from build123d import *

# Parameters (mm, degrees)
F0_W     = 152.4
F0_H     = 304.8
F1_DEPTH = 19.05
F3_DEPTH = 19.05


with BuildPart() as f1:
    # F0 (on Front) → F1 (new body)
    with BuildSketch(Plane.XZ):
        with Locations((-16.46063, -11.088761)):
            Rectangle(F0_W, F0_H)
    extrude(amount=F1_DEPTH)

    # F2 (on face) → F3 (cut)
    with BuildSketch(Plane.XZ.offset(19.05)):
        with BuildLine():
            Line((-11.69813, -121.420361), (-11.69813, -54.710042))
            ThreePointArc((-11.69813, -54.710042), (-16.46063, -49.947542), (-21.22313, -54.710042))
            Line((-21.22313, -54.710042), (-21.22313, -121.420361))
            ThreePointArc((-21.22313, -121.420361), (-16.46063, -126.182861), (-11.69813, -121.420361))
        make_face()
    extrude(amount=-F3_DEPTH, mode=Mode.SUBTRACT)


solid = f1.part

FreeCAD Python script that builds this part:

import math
import FreeCAD as App
import Part
import Sketcher
from FreeCAD import Vector
Q = App.Units.Quantity

doc = App.newDocument("Part")
body = doc.addObject("PartDesign::Body", "Body")

sketch1 = body.newObject("Sketcher::SketchObject", "Sketch")
sketch1.AttachmentSupport = (doc.getObject("XZ_Plane"), [""])
sketch1.MapMode = "FlatFace"
sketch1.addGeometry([
    Part.LineSegment(Vector(-93, 141, 0), Vector(-93, -163, 0)),
    Part.LineSegment(Vector(-93, -163, 0), Vector(60, -163, 0)),
    Part.LineSegment(Vector(60, -163, 0), Vector(60, 141, 0)),
    Part.LineSegment(Vector(60, 141, 0), Vector(-93, 141, 0)),
], False)
sketch1.addConstraint([
    Sketcher.Constraint("Coincident", 0, 2, 1, 1),
    Sketcher.Constraint("Coincident", 1, 2, 2, 1),
    Sketcher.Constraint("Coincident", 2, 2, 3, 1),
    Sketcher.Constraint("Coincident", 3, 2, 0, 1),
    Sketcher.Constraint("Vertical", 0),
    Sketcher.Constraint("Horizontal", 1),
    Sketcher.Constraint("Vertical", 2),
    Sketcher.Constraint("Horizontal", 3),
    Sketcher.Constraint("DistanceX", 1, 1, 1, 2, Q("6 in")),
    Sketcher.Constraint("DistanceY", 0, 2, 0, 1, Q("12 in")),
    Sketcher.Constraint("DistanceX", 0, 2, -1, 1, Q("92.66063 mm")),
    Sketcher.Constraint("DistanceY", 0, 2, -1, 1, Q("163.488761 mm")),
])
pad1 = body.newObject("PartDesign::Pad", "Pad")
pad1.Profile = sketch1
pad1.Length = Q("0.75 in")

sketch2 = body.newObject("Sketcher::SketchObject", "Sketch001")
sketch2.AttachmentSupport = (doc.getObject("XZ_Plane"), [""])
sketch2.MapMode = "FlatFace"
sketch2.AttachmentOffset = App.Placement(Vector(0, 0, 0.75 * 25.4), App.Rotation())
sketch2.addGeometry([
    Part.LineSegment(Vector(-11.7, -121.4, 0), Vector(-11.7, -54.7, 0)),
    Part.ArcOfCircle(Part.Circle(Vector(-16.5, -54.7, 0), Vector(0, 0, 1), 4.8), math.radians(0), math.radians(180)),
    Part.LineSegment(Vector(-21.2, -54.7, 0), Vector(-21.2, -121.4, 0)),
    Part.ArcOfCircle(Part.Circle(Vector(-16.5, -121.4, 0), Vector(0, 0, 1), 4.8), math.radians(180), math.radians(360)),
], False)
sketch2.addConstraint([
    Sketcher.Constraint("Tangent", 0, 2, 1, 1),
    Sketcher.Constraint("Tangent", 1, 2, 2, 1),
    Sketcher.Constraint("Tangent", 2, 2, 3, 1),
    Sketcher.Constraint("Tangent", 3, 2, 0, 1),
    Sketcher.Constraint("Vertical", 0),
    Sketcher.Constraint("Vertical", 2),
    Sketcher.Constraint("Radius", 1, Q("0.1875 in")),
    Sketcher.Constraint("DistanceY", 0, 1, 0, 2, Q("66.710319 mm")),
    Sketcher.Constraint("DistanceX", 1, 3, -1, 1, Q("16.46063 mm")),
    Sketcher.Constraint("DistanceY", 3, 3, -1, 1, Q("121.420361 mm")),
])
pocket1 = body.newObject("PartDesign::Pocket", "Pocket")
pocket1.Profile = sketch2
pocket1.Length = Q("0.75 in")

doc.recompute()
